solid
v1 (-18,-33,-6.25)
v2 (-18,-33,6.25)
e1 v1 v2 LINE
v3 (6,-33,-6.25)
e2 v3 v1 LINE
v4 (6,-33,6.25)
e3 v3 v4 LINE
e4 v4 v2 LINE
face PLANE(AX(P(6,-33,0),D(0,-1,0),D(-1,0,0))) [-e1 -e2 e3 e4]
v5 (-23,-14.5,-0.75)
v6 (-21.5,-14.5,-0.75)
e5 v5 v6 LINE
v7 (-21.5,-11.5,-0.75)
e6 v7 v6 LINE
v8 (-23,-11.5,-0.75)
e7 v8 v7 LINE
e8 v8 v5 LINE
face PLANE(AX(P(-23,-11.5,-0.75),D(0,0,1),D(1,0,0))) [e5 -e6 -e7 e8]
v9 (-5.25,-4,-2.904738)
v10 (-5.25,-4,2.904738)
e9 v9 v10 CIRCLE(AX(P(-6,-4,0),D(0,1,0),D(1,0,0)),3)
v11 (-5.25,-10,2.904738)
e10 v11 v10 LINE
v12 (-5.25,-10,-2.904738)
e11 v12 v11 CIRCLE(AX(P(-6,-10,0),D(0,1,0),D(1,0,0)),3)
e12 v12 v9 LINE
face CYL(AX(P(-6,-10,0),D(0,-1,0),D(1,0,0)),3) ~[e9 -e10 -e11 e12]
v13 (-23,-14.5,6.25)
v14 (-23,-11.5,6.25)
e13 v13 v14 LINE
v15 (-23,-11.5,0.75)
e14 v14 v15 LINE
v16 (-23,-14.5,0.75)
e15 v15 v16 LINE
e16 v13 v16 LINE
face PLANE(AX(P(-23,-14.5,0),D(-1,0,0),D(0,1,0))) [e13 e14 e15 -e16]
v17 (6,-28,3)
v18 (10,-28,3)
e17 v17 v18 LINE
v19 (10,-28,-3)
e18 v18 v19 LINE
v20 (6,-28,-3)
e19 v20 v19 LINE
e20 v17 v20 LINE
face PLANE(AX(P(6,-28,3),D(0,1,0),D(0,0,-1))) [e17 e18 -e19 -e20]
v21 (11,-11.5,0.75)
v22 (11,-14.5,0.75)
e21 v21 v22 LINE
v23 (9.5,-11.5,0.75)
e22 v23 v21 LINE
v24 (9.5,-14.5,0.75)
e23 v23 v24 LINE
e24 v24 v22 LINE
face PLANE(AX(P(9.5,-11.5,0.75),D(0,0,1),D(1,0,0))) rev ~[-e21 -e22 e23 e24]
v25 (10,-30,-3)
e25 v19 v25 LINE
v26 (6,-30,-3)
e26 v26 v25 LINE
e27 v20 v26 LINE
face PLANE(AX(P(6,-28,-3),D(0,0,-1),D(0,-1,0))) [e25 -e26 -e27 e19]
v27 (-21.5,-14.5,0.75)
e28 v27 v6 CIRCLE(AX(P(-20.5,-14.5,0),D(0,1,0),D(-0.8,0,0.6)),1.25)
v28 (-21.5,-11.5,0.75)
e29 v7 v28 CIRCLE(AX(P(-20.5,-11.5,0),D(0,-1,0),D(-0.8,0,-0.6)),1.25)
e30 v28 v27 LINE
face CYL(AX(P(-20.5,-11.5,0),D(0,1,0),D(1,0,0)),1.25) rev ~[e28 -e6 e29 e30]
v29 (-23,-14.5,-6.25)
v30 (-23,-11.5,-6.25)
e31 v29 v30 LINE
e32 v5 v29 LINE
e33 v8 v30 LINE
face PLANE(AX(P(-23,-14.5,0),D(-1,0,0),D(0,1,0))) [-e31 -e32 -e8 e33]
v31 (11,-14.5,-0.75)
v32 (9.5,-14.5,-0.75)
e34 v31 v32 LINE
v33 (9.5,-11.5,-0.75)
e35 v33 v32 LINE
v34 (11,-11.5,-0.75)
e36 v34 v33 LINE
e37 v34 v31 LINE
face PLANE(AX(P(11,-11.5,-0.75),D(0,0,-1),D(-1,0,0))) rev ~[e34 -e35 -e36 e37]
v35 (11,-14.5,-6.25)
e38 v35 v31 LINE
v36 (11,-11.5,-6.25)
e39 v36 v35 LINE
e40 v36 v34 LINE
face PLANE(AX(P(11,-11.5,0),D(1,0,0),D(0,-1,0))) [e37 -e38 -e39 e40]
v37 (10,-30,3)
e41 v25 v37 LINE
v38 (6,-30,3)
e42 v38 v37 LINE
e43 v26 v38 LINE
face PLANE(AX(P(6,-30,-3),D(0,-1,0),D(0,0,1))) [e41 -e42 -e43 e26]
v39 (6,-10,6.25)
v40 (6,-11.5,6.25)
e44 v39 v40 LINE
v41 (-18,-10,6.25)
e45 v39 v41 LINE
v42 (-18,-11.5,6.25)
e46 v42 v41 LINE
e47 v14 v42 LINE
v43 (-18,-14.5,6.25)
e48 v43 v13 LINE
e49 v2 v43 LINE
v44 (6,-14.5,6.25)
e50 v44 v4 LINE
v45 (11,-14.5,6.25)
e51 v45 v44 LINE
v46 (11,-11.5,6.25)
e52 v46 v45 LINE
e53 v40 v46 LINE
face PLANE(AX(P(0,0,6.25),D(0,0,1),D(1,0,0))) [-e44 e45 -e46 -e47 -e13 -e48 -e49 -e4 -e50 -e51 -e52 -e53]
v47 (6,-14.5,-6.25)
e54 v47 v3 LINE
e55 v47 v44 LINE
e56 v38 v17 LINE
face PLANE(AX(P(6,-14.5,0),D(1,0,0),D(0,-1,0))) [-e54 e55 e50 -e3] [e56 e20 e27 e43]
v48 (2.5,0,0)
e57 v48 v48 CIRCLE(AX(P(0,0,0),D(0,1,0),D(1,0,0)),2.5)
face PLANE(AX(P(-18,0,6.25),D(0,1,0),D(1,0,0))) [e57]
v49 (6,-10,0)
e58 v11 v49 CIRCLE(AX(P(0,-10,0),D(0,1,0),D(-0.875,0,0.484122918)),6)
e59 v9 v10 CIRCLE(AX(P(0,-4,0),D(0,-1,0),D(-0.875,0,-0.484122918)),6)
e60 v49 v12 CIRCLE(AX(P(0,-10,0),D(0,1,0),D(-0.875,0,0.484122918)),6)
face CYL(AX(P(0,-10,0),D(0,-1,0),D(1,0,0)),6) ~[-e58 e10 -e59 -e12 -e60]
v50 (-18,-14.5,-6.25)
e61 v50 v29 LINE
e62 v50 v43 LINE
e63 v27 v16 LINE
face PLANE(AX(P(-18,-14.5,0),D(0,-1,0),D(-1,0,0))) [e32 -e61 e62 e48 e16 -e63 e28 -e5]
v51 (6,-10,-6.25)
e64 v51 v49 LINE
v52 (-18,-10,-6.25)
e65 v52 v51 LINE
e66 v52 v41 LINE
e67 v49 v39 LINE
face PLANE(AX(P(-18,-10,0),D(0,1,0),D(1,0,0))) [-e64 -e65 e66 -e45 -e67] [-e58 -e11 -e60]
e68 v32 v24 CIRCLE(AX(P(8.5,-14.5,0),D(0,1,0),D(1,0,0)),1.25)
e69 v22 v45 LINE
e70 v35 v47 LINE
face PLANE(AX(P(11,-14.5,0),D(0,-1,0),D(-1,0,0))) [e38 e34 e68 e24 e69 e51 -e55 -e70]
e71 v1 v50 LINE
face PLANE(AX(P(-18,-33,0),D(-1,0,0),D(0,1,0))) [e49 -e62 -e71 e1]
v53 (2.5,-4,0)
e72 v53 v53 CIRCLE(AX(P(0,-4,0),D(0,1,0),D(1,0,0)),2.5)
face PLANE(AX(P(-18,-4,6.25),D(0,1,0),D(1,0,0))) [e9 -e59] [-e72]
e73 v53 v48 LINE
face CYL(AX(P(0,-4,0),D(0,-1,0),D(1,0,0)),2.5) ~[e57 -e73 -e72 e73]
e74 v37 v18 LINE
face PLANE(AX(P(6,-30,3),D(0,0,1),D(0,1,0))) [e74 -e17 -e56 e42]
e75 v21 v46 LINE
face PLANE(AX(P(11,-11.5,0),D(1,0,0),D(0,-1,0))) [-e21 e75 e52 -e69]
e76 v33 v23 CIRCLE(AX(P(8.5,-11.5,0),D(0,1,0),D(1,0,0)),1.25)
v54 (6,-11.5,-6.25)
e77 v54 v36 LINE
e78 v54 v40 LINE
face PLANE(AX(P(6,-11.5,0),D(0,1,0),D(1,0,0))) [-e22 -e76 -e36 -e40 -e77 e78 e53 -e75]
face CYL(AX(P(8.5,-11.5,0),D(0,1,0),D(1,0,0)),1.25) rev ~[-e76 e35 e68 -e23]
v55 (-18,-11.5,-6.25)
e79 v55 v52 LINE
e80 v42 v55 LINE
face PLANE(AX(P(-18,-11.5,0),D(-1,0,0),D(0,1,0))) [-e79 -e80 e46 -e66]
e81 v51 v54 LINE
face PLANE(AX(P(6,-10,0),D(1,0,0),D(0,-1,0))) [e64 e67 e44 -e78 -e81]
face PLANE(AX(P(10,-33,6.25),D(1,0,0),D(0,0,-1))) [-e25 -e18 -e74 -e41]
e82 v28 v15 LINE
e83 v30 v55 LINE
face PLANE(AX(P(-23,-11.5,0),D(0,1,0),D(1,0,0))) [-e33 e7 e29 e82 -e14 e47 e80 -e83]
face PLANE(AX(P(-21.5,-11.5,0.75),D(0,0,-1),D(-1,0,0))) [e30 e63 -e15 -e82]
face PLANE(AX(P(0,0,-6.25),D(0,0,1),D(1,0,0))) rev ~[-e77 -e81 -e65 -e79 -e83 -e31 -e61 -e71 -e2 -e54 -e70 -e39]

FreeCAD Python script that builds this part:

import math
import FreeCAD as App
import Part
import Sketcher
Q = App.Units.Quantity

doc = App.newDocument("Part")
body = doc.addObject("PartDesign::Body", "Body")

# Sketch on XY plane
sketch1 = doc.addObject("Sketcher::SketchObject", "Sketch")
body.addObject(sketch1)
sketch1.AttachmentSupport = (doc.XY_Plane, [""])
sketch1.MapMode = "FlatFace"
sketch1.addGeometry([
    Part.LineSegment(App.Vector(-23, -14.5, 0), App.Vector(-18, -14.5, 0)),  # 0
    Part.LineSegment(App.Vector(-18, -14.5, 0), App.Vector(-18, -33, 0)),  # 1
    Part.LineSegment(App.Vector(-18, -33, 0), App.Vector(6, -33, 0)),  # 2
    Part.LineSegment(App.Vector(6, -33, 0), App.Vector(6, -14.5, 0)),  # 3
    Part.LineSegment(App.Vector(6, -14.5, 0), App.Vector(11, -14.5, 0)),  # 4
    Part.LineSegment(App.Vector(11, -14.5, 0), App.Vector(11, -11.5, 0)),  # 5
    Part.LineSegment(App.Vector(11, -11.5, 0), App.Vector(6, -11.5, 0)),  # 6
    Part.LineSegment(App.Vector(6, -11.5, 0), App.Vector(6, -10, 0)),  # 7
    Part.LineSegment(App.Vector(6, -10, 0), App.Vector(-18, -10, 0)),  # 8
    Part.LineSegment(App.Vector(-18, -10, 0), App.Vector(-18, -11.5, 0)),  # 9
    Part.LineSegment(App.Vector(-18, -11.5, 0), App.Vector(-23, -11.5, 0)),  # 10
    Part.LineSegment(App.Vector(-23, -11.5, 0), App.Vector(-23, -14.5, 0)),  # 11
], False)
sketch1.addConstraint([
    Sketcher.Constraint("Coincident", 0, 2, 1, 1),
    Sketcher.Constraint("Coincident", 1, 2, 2, 1),
    Sketcher.Constraint("Coincident", 2, 2, 3, 1),
    Sketcher.Constraint("Coincident", 3, 2, 4, 1),
    Sketcher.Constraint("Coincident", 4, 2, 5, 1),
    Sketcher.Constraint("Coincident", 5, 2, 6, 1),
    Sketcher.Constraint("Coincident", 6, 2, 7, 1),
    Sketcher.Constraint("Coincident", 7, 2, 8, 1),
    Sketcher.Constraint("Coincident", 8, 2, 9, 1),
    Sketcher.Constraint("Coincident", 9, 2, 10, 1),
    Sketcher.Constraint("Coincident", 10, 2, 11, 1),
    Sketcher.Constraint("Coincident", 11, 2, 0, 1),
    Sketcher.Constraint("Horizontal", 0),
    Sketcher.Constraint("Vertical", 1),
    Sketcher.Constraint("Horizontal", 2),
    Sketcher.Constraint("Vertical", 3),
    Sketcher.Constraint("Horizontal", 4),
    Sketcher.Constraint("Vertical", 5),
    Sketcher.Constraint("Horizontal", 6),
    Sketcher.Constraint("Vertical", 7),
    Sketcher.Constraint("Horizontal", 8),
    Sketcher.Constraint("Vertical", 9),
    Sketcher.Constraint("Horizontal", 10),
    Sketcher.Constraint("Vertical", 11),
    Sketcher.Constraint("Horizontal", 0, 2, 3, 2),
    Sketcher.Constraint("Horizontal", 6, 2, 9, 2),
    Sketcher.Constraint("Vertical", 3, 2, 6, 2),
    Sketcher.Constraint("Vertical", 1, 2, 8, 2),
    Sketcher.Constraint("Equal", 0, 4),
    Sketcher.Constraint("DistanceX", 0, 1, 0, 2, Q("5 mm")),
    Sketcher.Constraint("DistanceX", 2, 1, 2, 2, Q("24 mm")),
    Sketcher.Constraint("DistanceY", 5, 1, 5, 2, Q("3 mm")),
    Sketcher.Constraint("DistanceY", 1, 2, 1, 1, Q("18.5 mm")),
    Sketcher.Constraint("DistanceY", 7, 1, 7, 2, Q("1.5 mm")),
    Sketcher.Constraint("DistanceX", -1, 1, 2, 2, Q("6 mm")),
    Sketcher.Constraint("DistanceY", 1, 2, -1, 1, Q("33 mm")),
])
pad1 = doc.addObject("PartDesign::Pad", "Pad")
body.addObject(pad1)
pad1.Profile = sketch1
pad1.Length = 12.5
pad1.Midplane = True

# Sketch on XZ plane
sketch2 = doc.addObject("Sketcher::SketchObject", "Sketch001")
body.addObject(sketch2)
sketch2.AttachmentSupport = (doc.XZ_Plane, [""])
sketch2.MapMode = "FlatFace"
sketch2.AttachmentOffset = App.Placement(App.Vector(0, 0, 10), App.Rotation())
sketch2.addGeometry([
    Part.ArcOfCircle(Part.Circle(App.Vector(0, 0, 0), App.Vector(0, 0, 1), 6), math.radians(-151.044976), math.radians(151.044976)),
    Part.ArcOfCircle(Part.Circle(App.Vector(-6, 0, 0), App.Vector(0, 0, 1), 3), math.radians(75.522488), math.radians(284.477512)),
], False)
sketch2.addConstraint([
    Sketcher.Constraint("Coincident", 0, 1, 1, 2),
    Sketcher.Constraint("Coincident", 1, 1, 0, 2),
    Sketcher.Constraint("Coincident", 0, 3, -1, 1),
    Sketcher.Constraint("PointOnObject", 1, 3, -1),
    Sketcher.Constraint("Radius", 0, Q("6 mm")),
    Sketcher.Constraint("Radius", 1, Q("3 mm")),
    Sketcher.Constraint("DistanceX", 1, 3, -1, 1, Q("6 mm")),
])
pad2 = doc.addObject("PartDesign::Pad", "Pad001")
body.addObject(pad2)
pad2.Profile = sketch2
pad2.Length = 6
pad2.Reversed = True

# Sketch on XZ plane
sketch3 = doc.addObject("Sketcher::SketchObject", "Sketch002")
body.addObject(sketch3)
sketch3.AttachmentSupport = (doc.XZ_Plane, [""])
sketch3.MapMode = "FlatFace"
sketch3.AttachmentOffset = App.Placement(App.Vector(0, 0, 4), App.Rotation())
sketch3.addGeometry(Part.Circle(App.Vector(0, 0, 0), App.Vector(0, 0, 1), 2.5), False)
sketch3.addConstraint([
    Sketcher.Constraint("Coincident", 0, 3, -1, 1),
    Sketcher.Constraint("Diameter", 0, Q("5 mm")),
])
pad3 = doc.addObject("PartDesign::Pad", "Pad002")
body.addObject(pad3)
pad3.Profile = sketch3
pad3.Length = 4
pad3.Reversed = True

# Sketch on XZ plane
sketch4 = doc.addObject("Sketcher::SketchObject", "Sketch003")
body.addObject(sketch4)
sketch4.AttachmentSupport = (doc.XZ_Plane, [""])
sketch4.MapMode = "FlatFace"
sketch4.AttachmentOffset = App.Placement(App.Vector(0, 0, 11.5), App.Rotation())
sketch4.addGeometry([
    Part.ArcOfCircle(Part.Circle(App.Vector(-20.5, 0, 0), App.Vector(0, 0, 1), 1.25), math.radians(-143.130102), math.radians(143.130102)),  # 0
    Part.LineSegment(App.Vector(-21.5, -0.75, 0), App.Vector(-23, -0.75, 0)),  # 1
    Part.LineSegment(App.Vector(-23, -0.75, 0), App.Vector(-23, 0.75, 0)),  # 2
    Part.LineSegment(App.Vector(-23, 0.75, 0), App.Vector(-21.5, 0.75, 0)),  # 3
    Part.LineSegment(App.Vector(11, 0.75, 0), App.Vector(11, -0.75, 0)),  # 4
    Part.LineSegment(App.Vector(11, -0.75, 0), App.Vector(9.5, -0.75, 0)),  # 5
    Part.ArcOfCircle(Part.Circle(App.Vector(8.5, 0, 0), App.Vector(0, 0, 1), 1.25), math.radians(36.869898), math.radians(323.130102)),  # 6
    Part.LineSegment(App.Vector(9.5, 0.75, 0), App.Vector(11, 0.75, 0)),  # 7
], False)
sketch4.addConstraint([
    Sketcher.Constraint("Coincident", 0, 1, 1, 1),
    Sketcher.Constraint("Coincident", 1, 2, 2, 1),
    Sketcher.Constraint("Coincident", 2, 2, 3, 1),
    Sketcher.Constraint("Coincident", 3, 2, 0, 2),
    Sketcher.Constraint("Coincident", 4, 2, 5, 1),
    Sketcher.Constraint("Coincident", 5, 2, 6, 2),
    Sketcher.Constraint("Coincident", 6, 1, 7, 1),
    Sketcher.Constraint("Coincident", 7, 2, 4, 1),
    Sketcher.Constraint("Horizontal", 1),
    Sketcher.Constraint("Vertical", 2),
    Sketcher.Constraint("Horizontal", 3),
    Sketcher.Constraint("Vertical", 4),
    Sketcher.Constraint("Horizontal", 5),
    Sketcher.Constraint("Horizontal", 7),
    Sketcher.Constraint("Equal", 0, 6),
    Sketcher.Constraint("Symmetric", 0, 1, 3, 2, -1),
    Sketcher.Constraint("Symmetric", 5, 2, 6, 1, -1),
    Sketcher.Constraint("Horizontal", 1, 2, 4, 2),
    Sketcher.Constraint("Equal", 3, 5),
    Sketcher.Constraint("Equal", 7, 2),
    Sketcher.Constraint("Radius", 0, Q("1.25 mm")),
    Sketcher.Constraint("DistanceX", 1, 2, 1, 1, Q("1.5 mm")),
    Sketcher.Constraint("DistanceX", 1, 2, -1, 1, Q("23 mm")),
    Sketcher.Constraint("DistanceX", -1, 1, 4, 2, Q("11 mm")),
])
pocket1 = doc.addObject("PartDesign::Pocket", "Pocket")
body.addObject(pocket1)
pocket1.Profile = sketch4
pocket1.Length = 3
pocket1.Reversed = True

# Sketch on YZ plane
sketch5 = doc.addObject("Sketcher::SketchObject", "Sketch004")
body.addObject(sketch5)
sketch5.AttachmentSupport = (doc.YZ_Plane, [""])
sketch5.MapMode = "FlatFace"
sketch5.AttachmentOffset = App.Placement(App.Vector(0, 0, 6), App.Rotation())
sketch5.addGeometry([
    Part.LineSegment(App.Vector(-28, -3, 0), App.Vector(-28, 3, 0)),
    Part.LineSegment(App.Vector(-28, 3, 0), App.Vector(-30, 3, 0)),
    Part.LineSegment(App.Vector(-30, 3, 0), App.Vector(-30, -3, 0)),
    Part.LineSegment(App.Vector(-30, -3, 0), App.Vector(-28, -3, 0)),
], False)
sketch5.addConstraint([
    Sketcher.Constraint("Coincident", 0, 2, 1, 1),
    Sketcher.Constraint("Coincident", 1, 2, 2, 1),
    Sketcher.Constraint("Coincident", 2, 2, 3, 1),
    Sketcher.Constraint("Coincident", 3, 2, 0, 1),
    Sketcher.Constraint("Vertical", 0),
    Sketcher.Constraint("Horizontal", 1),
    Sketcher.Constraint("Vertical", 2),
    Sketcher.Constraint("Horizontal", 3),
    Sketcher.Constraint("DistanceY", 0, 1, 0, 2, Q("6 mm")),
    Sketcher.Constraint("DistanceY", -1, 1, 0, 2, Q("3 mm")),
    Sketcher.Constraint("DistanceX", 1, 2, 1, 1, Q("2 mm")),
    Sketcher.Constraint("DistanceX", 0, 2, -1, 1, Q("28 mm")),
])
pad4 = doc.addObject("PartDesign::Pad", "Pad003")
body.addObject(pad4)
pad4.Profile = sketch5
pad4.Length = 4

doc.recompute()
